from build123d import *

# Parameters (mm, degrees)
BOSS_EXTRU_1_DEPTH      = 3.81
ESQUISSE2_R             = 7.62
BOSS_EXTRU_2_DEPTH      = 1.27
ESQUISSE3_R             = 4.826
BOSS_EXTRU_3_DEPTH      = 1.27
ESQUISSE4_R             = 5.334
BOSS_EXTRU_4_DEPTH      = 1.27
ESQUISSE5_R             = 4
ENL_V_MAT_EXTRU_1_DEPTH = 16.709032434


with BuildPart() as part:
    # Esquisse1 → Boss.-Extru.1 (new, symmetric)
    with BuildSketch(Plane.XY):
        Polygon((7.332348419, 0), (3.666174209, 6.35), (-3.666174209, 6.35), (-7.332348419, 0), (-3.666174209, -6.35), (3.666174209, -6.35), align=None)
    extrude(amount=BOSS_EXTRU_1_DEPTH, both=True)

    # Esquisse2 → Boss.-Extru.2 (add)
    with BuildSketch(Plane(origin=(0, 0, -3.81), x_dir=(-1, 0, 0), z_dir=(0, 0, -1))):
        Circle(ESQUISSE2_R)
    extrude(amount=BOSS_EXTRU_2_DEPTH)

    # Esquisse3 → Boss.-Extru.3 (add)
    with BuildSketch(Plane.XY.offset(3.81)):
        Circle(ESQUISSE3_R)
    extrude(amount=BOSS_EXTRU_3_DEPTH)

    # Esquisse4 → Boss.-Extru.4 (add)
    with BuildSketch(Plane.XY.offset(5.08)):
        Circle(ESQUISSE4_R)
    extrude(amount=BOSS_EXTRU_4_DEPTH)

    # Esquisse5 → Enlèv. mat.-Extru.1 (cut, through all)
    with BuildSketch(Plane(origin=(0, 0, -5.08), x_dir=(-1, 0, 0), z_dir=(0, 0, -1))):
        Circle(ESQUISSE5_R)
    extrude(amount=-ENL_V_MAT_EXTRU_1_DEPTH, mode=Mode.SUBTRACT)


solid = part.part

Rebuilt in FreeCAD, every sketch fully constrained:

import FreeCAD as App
import Part
import Sketcher
from FreeCAD import Vector
Q = App.Units.Quantity


def add_polygon(sketch, points):
    """Adds a closed chain of lines whose ends are joined by coincident constraints."""
    first, n = sketch.GeometryCount, len(points)
    for a, b in zip(points, points[1:] + points[:1]):
        sketch.addGeometry(Part.LineSegment(App.Vector(*a, 0), App.Vector(*b, 0)), False)
    for i in range(n):
        sketch.addConstraint(Sketcher.Constraint("Coincident", first + i, 2, first + (i + 1) % n, 1))

doc = App.newDocument("Part")
body = doc.addObject("PartDesign::Body", "Body")

# Sketch on XY plane
sketch1 = body.newObject("Sketcher::SketchObject", "Sketch")
sketch1.AttachmentSupport = (doc.getObject("XY_Plane"), [""])
sketch1.MapMode = "FlatFace"
add_polygon(sketch1, [(7, 0), (4, 6), (-4, 6), (-7, 0), (-4, -6), (4, -6)])  # lines 0-5
sketch1.addConstraint([
    Sketcher.Constraint("Horizontal", 1),
    Sketcher.Constraint("Horizontal", 4),
    Sketcher.Constraint("Symmetric", 0, 2, 3, 2, -1, 1),
    Sketcher.Constraint("Symmetric", 2, 2, 5, 2, -1, 1),
    Sketcher.Constraint("PointOnObject", 2, 2, -1),
    Sketcher.Constraint("Parallel", 2, 5),
    Sketcher.Constraint("Vertical", 1, 2, 3, 2),
    Sketcher.Constraint("Angle", 0, Q("120 deg")),
    Sketcher.Constraint("DistanceY", 3, 2, 1, 2, Q("0.5 in")),
    Sketcher.Constraint("DistanceX", 1, 2, 1, 1, Q("7.332348 mm")),
])
pad1 = body.newObject("PartDesign::Pad", "Pad")
pad1.Profile = sketch1
pad1.Length = Q("0.3 in")
pad1.Midplane = True

# Sketch on XY plane
sketch2 = body.newObject("Sketcher::SketchObject", "Sketch001")
sketch2.AttachmentSupport = (doc.getObject("XY_Plane"), [""])
sketch2.MapMode = "FlatFace"
sketch2.AttachmentOffset = App.Placement(Vector(0, 0, -0.15 * 25.4), App.Rotation())
sketch2.addGeometry(Part.Circle(Vector(0, 0, 0), Vector(0, 0, 1), 8), False)
sketch2.addConstraint([
    Sketcher.Constraint("Coincident", 0, 3, -1, 1),
    Sketcher.Constraint("Diameter", 0, Q("0.6 in")),
])
pad2 = body.newObject("PartDesign::Pad", "Pad001")
pad2.Profile = sketch2
pad2.Length = Q("0.05 in")
pad2.Reversed = True

# Sketch on XY plane
sketch3 = body.newObject("Sketcher::SketchObject", "Sketch002")
sketch3.AttachmentSupport = (doc.getObject("XY_Plane"), [""])
sketch3.MapMode = "FlatFace"
sketch3.AttachmentOffset = App.Placement(Vector(0, 0, 0.15 * 25.4), App.Rotation())
sketch3.addGeometry(Part.Circle(Vector(0, 0, 0), Vector(0, 0, 1), 4.8), False)
sketch3.addConstraint([
    Sketcher.Constraint("Coincident", 0, 3, -1, 1),
    Sketcher.Constraint("Diameter", 0, Q("0.38 in")),
])
pad3 = body.newObject("PartDesign::Pad", "Pad002")
pad3.Profile = sketch3
pad3.Length = Q("0.05 in")

# Sketch on XY plane
sketch4 = body.newObject("Sketcher::SketchObject", "Sketch003")
sketch4.AttachmentSupport = (doc.getObject("XY_Plane"), [""])
sketch4.MapMode = "FlatFace"
sketch4.AttachmentOffset = App.Placement(Vector(0, 0, 0.2 * 25.4), App.Rotation())
sketch4.addGeometry(Part.Circle(Vector(0, 0, 0), Vector(0, 0, 1), 5), False)
sketch4.addConstraint([
    Sketcher.Constraint("Coincident", 0, 3, -1, 1),
    Sketcher.Constraint("Diameter", 0, Q("0.42 in")),
])
pad4 = body.newObject("PartDesign::Pad", "Pad003")
pad4.Profile = sketch4
pad4.Length = Q("0.05 in")

# Sketch on XY plane
sketch5 = body.newObject("Sketcher::SketchObject", "Sketch004")
sketch5.AttachmentSupport = (doc.getObject("XY_Plane"), [""])
sketch5.MapMode = "FlatFace"
sketch5.AttachmentOffset = App.Placement(Vector(0, 0, -0.2 * 25.4), App.Rotation())
sketch5.addGeometry(Part.Circle(Vector(0, 0, 0), Vector(0, 0, 1), 4), False)
sketch5.addConstraint([
    Sketcher.Constraint("Coincident", 0, 3, -1, 1),
    Sketcher.Constraint("Diameter", 0, Q("8 mm")),
])
pocket1 = body.newObject("PartDesign::Pocket", "Pocket")
pocket1.Profile = sketch5
pocket1.Type = "ThroughAll"
pocket1.Reversed = True

doc.recompute()
